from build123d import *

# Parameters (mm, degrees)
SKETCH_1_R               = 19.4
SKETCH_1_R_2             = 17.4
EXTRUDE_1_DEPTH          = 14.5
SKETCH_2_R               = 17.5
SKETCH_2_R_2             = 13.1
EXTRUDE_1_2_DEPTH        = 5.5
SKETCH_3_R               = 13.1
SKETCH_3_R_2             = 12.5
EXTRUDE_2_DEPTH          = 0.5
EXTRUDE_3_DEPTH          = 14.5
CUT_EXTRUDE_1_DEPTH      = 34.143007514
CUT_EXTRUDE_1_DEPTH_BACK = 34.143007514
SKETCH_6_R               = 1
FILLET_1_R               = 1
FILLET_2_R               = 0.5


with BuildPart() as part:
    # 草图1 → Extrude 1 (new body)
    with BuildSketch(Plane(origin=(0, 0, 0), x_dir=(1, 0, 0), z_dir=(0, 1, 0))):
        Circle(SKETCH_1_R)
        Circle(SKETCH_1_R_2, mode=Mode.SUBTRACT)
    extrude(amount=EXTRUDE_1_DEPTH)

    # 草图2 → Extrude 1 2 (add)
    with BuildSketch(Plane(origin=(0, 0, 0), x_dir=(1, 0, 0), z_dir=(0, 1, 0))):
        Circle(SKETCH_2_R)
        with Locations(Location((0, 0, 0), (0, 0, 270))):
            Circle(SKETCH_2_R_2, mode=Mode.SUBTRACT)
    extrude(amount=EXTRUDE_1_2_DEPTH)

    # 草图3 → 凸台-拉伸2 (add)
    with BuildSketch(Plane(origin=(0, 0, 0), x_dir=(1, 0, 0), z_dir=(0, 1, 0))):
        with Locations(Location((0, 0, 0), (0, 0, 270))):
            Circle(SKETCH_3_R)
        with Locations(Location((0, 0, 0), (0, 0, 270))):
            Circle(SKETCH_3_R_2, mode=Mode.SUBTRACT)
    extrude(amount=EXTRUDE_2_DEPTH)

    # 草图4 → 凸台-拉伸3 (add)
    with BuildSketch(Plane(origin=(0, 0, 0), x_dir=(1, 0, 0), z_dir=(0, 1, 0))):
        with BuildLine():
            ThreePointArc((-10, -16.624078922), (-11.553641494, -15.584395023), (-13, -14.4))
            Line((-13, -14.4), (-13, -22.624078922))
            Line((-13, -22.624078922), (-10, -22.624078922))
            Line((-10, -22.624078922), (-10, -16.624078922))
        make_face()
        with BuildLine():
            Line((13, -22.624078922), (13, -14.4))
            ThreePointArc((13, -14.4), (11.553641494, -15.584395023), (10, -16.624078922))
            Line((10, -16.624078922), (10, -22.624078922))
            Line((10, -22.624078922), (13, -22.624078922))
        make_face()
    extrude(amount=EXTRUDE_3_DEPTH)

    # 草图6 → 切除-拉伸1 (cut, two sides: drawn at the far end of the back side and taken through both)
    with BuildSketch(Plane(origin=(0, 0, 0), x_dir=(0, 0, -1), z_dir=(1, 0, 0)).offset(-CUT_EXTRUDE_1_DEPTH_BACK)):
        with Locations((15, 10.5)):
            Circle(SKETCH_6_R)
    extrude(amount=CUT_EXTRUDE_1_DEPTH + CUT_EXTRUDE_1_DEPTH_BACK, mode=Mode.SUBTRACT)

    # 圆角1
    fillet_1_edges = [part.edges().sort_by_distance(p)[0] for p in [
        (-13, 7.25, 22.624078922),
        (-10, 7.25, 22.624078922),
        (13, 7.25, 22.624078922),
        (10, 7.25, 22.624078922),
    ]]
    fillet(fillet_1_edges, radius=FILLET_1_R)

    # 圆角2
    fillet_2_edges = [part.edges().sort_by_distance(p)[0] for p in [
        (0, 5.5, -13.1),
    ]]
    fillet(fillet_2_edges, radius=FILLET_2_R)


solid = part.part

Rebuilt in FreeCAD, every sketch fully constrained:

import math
import FreeCAD as App
import Part
import Sketcher
Q = App.Units.Quantity


def edges_at(feature, points):
    """Names of the edges that pass closest to the given points."""
    edges = feature.Shape.Edges
    near = lambda p: min(range(len(edges)), key=lambda i: edges[i].distToShape(Part.Vertex(*p))[0])
    return sorted({f"Edge{near(p) + 1}" for p in points})

doc = App.newDocument("Part")
params = doc.addObject("Spreadsheet::Sheet", "Params")
for row, (alias, value) in enumerate([
    ("sketch1_diameter", "38.8 mm"),
    ("sketch1_diameter2", "34.8 mm"),
    ("pad1_length", "14.5 mm"),
    ("sketch2_diameter", "35 mm"),
    ("sketch2_diameter2", "26.2 mm"),
    ("pad2_length", "5.5 mm"),
    ("sketch3_diameter", "25 mm"),
    ("sketch3_diameter2", "26.2 mm"),
    ("pad3_length", "0.5 mm"),
    ("sketch4_radius", "19.4 mm"),
    ("sketch4_width", "3 mm"),
    ("sketch4_height", "6 mm"),
    ("pad4_length", "14.5 mm"),
    ("sketch5_diameter", "2 mm"),
    ("fillet_radius", "1 mm"),
    ("fillet2_radius", "0.5 mm"),
], start=1):
    params.set(f"A{row}", alias)
    params.set(f"B{row}", "=" + value)
    params.setAlias(f"B{row}", alias)

body = doc.addObject("PartDesign::Body", "Body")

sketch1 = body.newObject("Sketcher::SketchObject", "Sketch")
sketch1.AttachmentSupport = (doc.getObject("XZ_Plane"), [""])
sketch1.MapMode = "FlatFace"
sketch1.addGeometry(Part.Circle(App.Vector(0, 0, 0), App.Vector(0, 0, 1), 19), False)
sketch1.addGeometry(Part.Circle(App.Vector(0, 0, 0), App.Vector(0, 0, 1), 17), False)
sketch1.addConstraint(Sketcher.Constraint("Coincident", 0, 3, -1, 1))
sketch1.addConstraint(Sketcher.Constraint("Coincident", 1, 3, -1, 1))
sketch1.addConstraint(Sketcher.Constraint("Diameter", 0, Q("38.8 mm")))
sketch1.addConstraint(Sketcher.Constraint("Diameter", 1, Q("34.8 mm")))
sketch1.setExpression("Constraints[2]", "Params.sketch1_diameter")
sketch1.setExpression("Constraints[3]", "Params.sketch1_diameter2")
pad1 = body.newObject("PartDesign::Pad", "Pad")
pad1.Profile = sketch1
pad1.setExpression("Length", "Params.pad1_length")
pad1.Reversed = True

sketch2 = body.newObject("Sketcher::SketchObject", "Sketch001")
sketch2.AttachmentSupport = (doc.getObject("XZ_Plane"), [""])
sketch2.MapMode = "FlatFace"
sketch2.addGeometry(Part.Circle(App.Vector(0, 0, 0), App.Vector(0, 0, 1), 18), False)
sketch2.addGeometry(Part.Circle(App.Vector(0, 0, 0), App.Vector(0, 0, 1), 13), False)
sketch2.addConstraint(Sketcher.Constraint("Coincident", 0, 3, -1, 1))
sketch2.addConstraint(Sketcher.Constraint("Coincident", 1, 3, -1, 1))
sketch2.addConstraint(Sketcher.Constraint("Diameter", 0, Q("35 mm")))
sketch2.addConstraint(Sketcher.Constraint("Diameter", 1, Q("26.2 mm")))
sketch2.setExpression("Constraints[2]", "Params.sketch2_diameter")
sketch2.setExpression("Constraints[3]", "Params.sketch2_diameter2")
pad2 = body.newObject("PartDesign::Pad", "Pad001")
pad2.Profile = sketch2
pad2.setExpression("Length", "Params.pad2_length")
pad2.Reversed = True

sketch3 = body.newObject("Sketcher::SketchObject", "Sketch002")
sketch3.AttachmentSupport = (doc.getObject("XZ_Plane"), [""])
sketch3.MapMode = "FlatFace"
sketch3.addGeometry(Part.Circle(App.Vector(0, 0, 0), App.Vector(0, 0, 1), 13), False)
sketch3.addGeometry(Part.Circle(App.Vector(0, 0, 0), App.Vector(0, 0, 1), 12), False)
sketch3.addConstraint(Sketcher.Constraint("Coincident", 0, 3, -1, 1))
sketch3.addConstraint(Sketcher.Constraint("Coincident", 1, 3, -1, 1))
sketch3.addConstraint(Sketcher.Constraint("Diameter", 1, Q("25 mm")))
sketch3.addConstraint(Sketcher.Constraint("Diameter", 0, Q("26.2 mm")))
sketch3.setExpression("Constraints[2]", "Params.sketch3_diameter")
sketch3.setExpression("Constraints[3]", "Params.sketch3_diameter2")
pad3 = body.newObject("PartDesign::Pad", "Pad002")
pad3.Profile = sketch3
pad3.setExpression("Length", "Params.pad3_length")
pad3.Reversed = True

sketch4 = body.newObject("Sketcher::SketchObject", "Sketch003")
sketch4.AttachmentSupport = (doc.getObject("XZ_Plane"), [""])
sketch4.MapMode = "FlatFace"
sketch4.addGeometry(Part.ArcOfCircle(Part.Circle(App.Vector(0, 0, 0), App.Vector(0, 0, 1), 19.4), math.radians(121.03), math.radians(132.08)), False)
sketch4.addGeometry(Part.LineSegment(App.Vector(-13, 14.4, 0), App.Vector(-13, 22.6, 0)), False)
sketch4.addGeometry(Part.LineSegment(App.Vector(-13, 22.6, 0), App.Vector(-10, 22.6, 0)), False)
sketch4.addGeometry(Part.LineSegment(App.Vector(-10, 22.6, 0), App.Vector(-10, 16.6, 0)), False)
sketch4.addGeometry(Part.LineSegment(App.Vector(13, 22.6, 0), App.Vector(13, 14.4, 0)), False)
sketch4.addGeometry(Part.ArcOfCircle(Part.Circle(App.Vector(0, 0, 0), App.Vector(0, 0, 1), 19.4), math.radians(47.92), math.radians(58.97)), False)
sketch4.addGeometry(Part.LineSegment(App.Vector(10, 16.6, 0), App.Vector(10, 22.6, 0)), False)
sketch4.addGeometry(Part.LineSegment(App.Vector(10, 22.6, 0), App.Vector(13, 22.6, 0)), False)
sketch4.addConstraint(Sketcher.Constraint("Coincident", 0, 2, 1, 1))
sketch4.addConstraint(Sketcher.Constraint("Coincident", 1, 2, 2, 1))
sketch4.addConstraint(Sketcher.Constraint("Coincident", 2, 2, 3, 1))
sketch4.addConstraint(Sketcher.Constraint("Coincident", 3, 2, 0, 1))
sketch4.addConstraint(Sketcher.Constraint("Coincident", 4, 2, 5, 1))
sketch4.addConstraint(Sketcher.Constraint("Coincident", 5, 2, 6, 1))
sketch4.addConstraint(Sketcher.Constraint("Coincident", 6, 2, 7, 1))
sketch4.addConstraint(Sketcher.Constraint("Coincident", 7, 2, 4, 1))
sketch4.addConstraint(Sketcher.Constraint("Vertical", 1))
sketch4.addConstraint(Sketcher.Constraint("Horizontal", 2))
sketch4.addConstraint(Sketcher.Constraint("Vertical", 3))
sketch4.addConstraint(Sketcher.Constraint("Vertical", 4))
sketch4.addConstraint(Sketcher.Constraint("Vertical", 6))
sketch4.addConstraint(Sketcher.Constraint("Horizontal", 7))
sketch4.addConstraint(Sketcher.Constraint("Coincident", 0, 3, -1, 1))
sketch4.addConstraint(Sketcher.Constraint("Coincident", 5, 3, -1, 1))
sketch4.addConstraint(Sketcher.Constraint("Equal", 0, 5))
sketch4.addConstraint(Sketcher.Constraint("Symmetric", 2, 2, 6, 2, -2))
sketch4.addConstraint(Sketcher.Constraint("Horizontal", 0, 2, 4, 2))
sketch4.addConstraint(Sketcher.Constraint("Radius", 0, Q("19.4 mm")))
sketch4.addConstraint(Sketcher.Constraint("DistanceX", 2, 1, 2, 2, Q("3 mm")))
sketch4.addConstraint(Sketcher.Constraint("DistanceY", 3, 2, 3, 1, Q("6 mm")))
sketch4.addConstraint(Sketcher.Constraint("DistanceX", 0, 2, -1, 1, Q("13 mm")))
sketch4.setExpression("Constraints[19]", "Params.sketch4_radius")
sketch4.setExpression("Constraints[20]", "Params.sketch4_width")
sketch4.setExpression("Constraints[21]", "Params.sketch4_height")
pad4 = body.newObject("PartDesign::Pad", "Pad003")
pad4.Profile = sketch4
pad4.setExpression("Length", "Params.pad4_length")
pad4.Reversed = True

sketch5 = body.newObject("Sketcher::SketchObject", "Sketch004")
sketch5.AttachmentSupport = (doc.getObject("YZ_Plane"), [""])
sketch5.MapMode = "FlatFace"
sketch5.addGeometry(Part.Circle(App.Vector(10.5, -15, 0), App.Vector(0, 0, 1), 1), False)
sketch5.addConstraint(Sketcher.Constraint("Diameter", 0, Q("2 mm")))
sketch5.addConstraint(Sketcher.Constraint("DistanceY", 0, 3, -1, 1, Q("15 mm")))
sketch5.addConstraint(Sketcher.Constraint("DistanceX", -1, 1, 0, 3, Q("10.5 mm")))
sketch5.setExpression("Constraints[0]", "Params.sketch5_diameter")
pocket1 = body.newObject("PartDesign::Pocket", "Pocket")
pocket1.Profile = sketch5
pocket1.Type = "ThroughAll"
pocket1.Midplane = True
doc.recompute()

fillet = body.newObject("PartDesign::Fillet", "Fillet")
fillet.Base = (pocket1, edges_at(pocket1, [
    (-13, 7.25, 22.624),
    (-10, 7.25, 22.624),
    (13, 7.25, 22.624),
    (10, 7.25, 22.624),
]))
fillet.setExpression("Radius", "Params.fillet_radius")
doc.recompute()

fillet2 = body.newObject("PartDesign::Fillet", "Fillet001")
fillet2.Base = (fillet, edges_at(fillet, [(0, 5.5, -13.1)]))
fillet2.setExpression("Radius", "Params.fillet2_radius")

doc.recompute()
